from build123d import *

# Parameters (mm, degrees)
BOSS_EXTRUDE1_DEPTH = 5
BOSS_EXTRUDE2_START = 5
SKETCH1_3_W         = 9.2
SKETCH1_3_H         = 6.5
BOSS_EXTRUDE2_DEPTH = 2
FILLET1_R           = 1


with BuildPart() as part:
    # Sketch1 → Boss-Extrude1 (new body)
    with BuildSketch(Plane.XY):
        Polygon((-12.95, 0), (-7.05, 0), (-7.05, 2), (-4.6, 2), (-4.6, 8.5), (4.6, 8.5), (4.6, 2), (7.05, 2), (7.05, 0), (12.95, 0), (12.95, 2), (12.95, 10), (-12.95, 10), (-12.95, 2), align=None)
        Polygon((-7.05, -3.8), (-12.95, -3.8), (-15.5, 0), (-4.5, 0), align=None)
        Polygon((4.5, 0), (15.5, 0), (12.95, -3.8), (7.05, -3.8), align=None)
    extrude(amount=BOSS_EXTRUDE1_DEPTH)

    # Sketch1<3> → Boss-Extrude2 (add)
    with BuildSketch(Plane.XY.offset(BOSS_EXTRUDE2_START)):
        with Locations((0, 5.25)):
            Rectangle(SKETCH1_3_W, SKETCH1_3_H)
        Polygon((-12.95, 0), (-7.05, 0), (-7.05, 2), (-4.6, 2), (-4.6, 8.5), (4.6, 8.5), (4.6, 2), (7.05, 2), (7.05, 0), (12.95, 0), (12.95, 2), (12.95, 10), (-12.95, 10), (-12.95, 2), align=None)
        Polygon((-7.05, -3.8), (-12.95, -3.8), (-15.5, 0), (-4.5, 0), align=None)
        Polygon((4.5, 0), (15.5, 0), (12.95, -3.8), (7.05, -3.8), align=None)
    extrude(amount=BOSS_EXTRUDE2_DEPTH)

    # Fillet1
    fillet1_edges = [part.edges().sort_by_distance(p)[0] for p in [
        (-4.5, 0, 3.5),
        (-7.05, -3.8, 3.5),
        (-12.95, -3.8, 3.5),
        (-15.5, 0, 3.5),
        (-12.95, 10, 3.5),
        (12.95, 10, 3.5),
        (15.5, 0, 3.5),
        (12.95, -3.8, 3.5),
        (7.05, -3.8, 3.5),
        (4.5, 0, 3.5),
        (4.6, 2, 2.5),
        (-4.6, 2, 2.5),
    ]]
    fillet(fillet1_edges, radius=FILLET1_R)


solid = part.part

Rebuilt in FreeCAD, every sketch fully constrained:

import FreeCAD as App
import Part
import Sketcher

V = App.Vector


def edges_at(feature, points):
    """Names of the edges that pass closest to the given points."""
    edges = feature.Shape.Edges
    near = lambda p: min(range(len(edges)), key=lambda i: edges[i].distToShape(Part.Vertex(*p))[0])
    return sorted({f"Edge{near(p) + 1}" for p in points})

doc = App.newDocument("Part")
body = doc.addObject("PartDesign::Body", "Body")

sketch1 = body.newObject("Sketcher::SketchObject", "Sketch")
sketch1.AttachmentSupport = (doc.getObject("XY_Plane"), [""])
sketch1.MapMode = "FlatFace"
sketch1.addGeometry(Part.LineSegment(V(-7, 0, 0), V(-7, 2, 0)), False)
sketch1.addGeometry(Part.LineSegment(V(-7, 2, 0), V(-4.6, 2, 0)), False)
sketch1.addGeometry(Part.LineSegment(V(-4.6, 2, 0), V(-4.6, 8.5, 0)), False)
sketch1.addGeometry(Part.LineSegment(V(-4.6, 8.5, 0), V(4.6, 8.5, 0)), False)
sketch1.addGeometry(Part.LineSegment(V(4.6, 8.5, 0), V(4.6, 2, 0)), False)
sketch1.addGeometry(Part.LineSegment(V(4.6, 2, 0), V(7, 2, 0)), False)
sketch1.addGeometry(Part.LineSegment(V(7, 2, 0), V(7, 0, 0)), False)
sketch1.addGeometry(Part.LineSegment(V(7, 0, 0), V(4.5, 0, 0)), False)
sketch1.addGeometry(Part.LineSegment(V(4.5, 0, 0), V(7, -3.8, 0)), False)
sketch1.addGeometry(Part.LineSegment(V(7, -3.8, 0), V(12.9, -3.8, 0)), False)
sketch1.addGeometry(Part.LineSegment(V(12.9, -3.8, 0), V(15.5, 0, 0)), False)
sketch1.addGeometry(Part.LineSegment(V(15.5, 0, 0), V(12.9, 0, 0)), False)
sketch1.addGeometry(Part.LineSegment(V(12.9, 0, 0), V(12.9, 10, 0)), False)
sketch1.addGeometry(Part.LineSegment(V(12.9, 10, 0), V(-12.9, 10, 0)), False)
sketch1.addGeometry(Part.LineSegment(V(-12.9, 10, 0), V(-12.9, 0, 0)), False)
sketch1.addGeometry(Part.LineSegment(V(-12.9, 0, 0), V(-15.5, 0, 0)), False)
sketch1.addGeometry(Part.LineSegment(V(-15.5, 0, 0), V(-12.9, -3.8, 0)), False)
sketch1.addGeometry(Part.LineSegment(V(-12.9, -3.8, 0), V(-7, -3.8, 0)), False)
sketch1.addGeometry(Part.LineSegment(V(-7, -3.8, 0), V(-4.5, 0, 0)), False)
sketch1.addGeometry(Part.LineSegment(V(-4.5, 0, 0), V(-7, 0, 0)), False)
sketch1.addConstraint(Sketcher.Constraint("Coincident", 0, 2, 1, 1))
sketch1.addConstraint(Sketcher.Constraint("Coincident", 1, 2, 2, 1))
sketch1.addConstraint(Sketcher.Constraint("Coincident", 2, 2, 3, 1))
sketch1.addConstraint(Sketcher.Constraint("Coincident", 3, 2, 4, 1))
sketch1.addConstraint(Sketcher.Constraint("Coincident", 4, 2, 5, 1))
sketch1.addConstraint(Sketcher.Constraint("Coincident", 5, 2, 6, 1))
sketch1.addConstraint(Sketcher.Constraint("Coincident", 6, 2, 7, 1))
sketch1.addConstraint(Sketcher.Constraint("Coincident", 7, 2, 8, 1))
sketch1.addConstraint(Sketcher.Constraint("Coincident", 8, 2, 9, 1))
sketch1.addConstraint(Sketcher.Constraint("Coincident", 9, 2, 10, 1))
sketch1.addConstraint(Sketcher.Constraint("Coincident", 10, 2, 11, 1))
sketch1.addConstraint(Sketcher.Constraint("Coincident", 11, 2, 12, 1))
sketch1.addConstraint(Sketcher.Constraint("Coincident", 12, 2, 13, 1))
sketch1.addConstraint(Sketcher.Constraint("Coincident", 13, 2, 14, 1))
sketch1.addConstraint(Sketcher.Constraint("Coincident", 14, 2, 15, 1))
sketch1.addConstraint(Sketcher.Constraint("Coincident", 15, 2, 16, 1))
sketch1.addConstraint(Sketcher.Constraint("Coincident", 16, 2, 17, 1))
sketch1.addConstraint(Sketcher.Constraint("Coincident", 17, 2, 18, 1))
sketch1.addConstraint(Sketcher.Constraint("Coincident", 18, 2, 19, 1))
sketch1.addConstraint(Sketcher.Constraint("Coincident", 19, 2, 0, 1))
sketch1.addConstraint(Sketcher.Constraint("Vertical", 0))
sketch1.addConstraint(Sketcher.Constraint("Horizontal", 1))
sketch1.addConstraint(Sketcher.Constraint("Vertical", 2))
sketch1.addConstraint(Sketcher.Constraint("Horizontal", 3))
sketch1.addConstraint(Sketcher.Constraint("Vertical", 4))
sketch1.addConstraint(Sketcher.Constraint("Horizontal", 5))
sketch1.addConstraint(Sketcher.Constraint("Vertical", 6))
sketch1.addConstraint(Sketcher.Constraint("Horizontal", 7))
sketch1.addConstraint(Sketcher.Constraint("Horizontal", 9))
sketch1.addConstraint(Sketcher.Constraint("Horizontal", 11))
sketch1.addConstraint(Sketcher.Constraint("Vertical", 12))
sketch1.addConstraint(Sketcher.Constraint("Horizontal", 13))
sketch1.addConstraint(Sketcher.Constraint("Vertical", 14))
sketch1.addConstraint(Sketcher.Constraint("Horizontal", 15))
sketch1.addConstraint(Sketcher.Constraint("Horizontal", 17))
sketch1.addConstraint(Sketcher.Constraint("Horizontal", 19))
sketch1.addConstraint(Sketcher.Constraint("Symmetric", 11, 2, 14, 2, -1, 1))
sketch1.addConstraint(Sketcher.Constraint("Symmetric", 7, 2, 18, 2, -1, 1))
sketch1.addConstraint(Sketcher.Constraint("Symmetric", 1, 2, 4, 2, -2))
sketch1.addConstraint(Sketcher.Constraint("Symmetric", 10, 2, 15, 2, -2))
sketch1.addConstraint(Sketcher.Constraint("Symmetric", 9, 2, 16, 2, -2))
sketch1.addConstraint(Sketcher.Constraint("Symmetric", 6, 2, 19, 2, -2))
sketch1.addConstraint(Sketcher.Constraint("Parallel", 8, 16))
sketch1.addConstraint(Sketcher.Constraint("Parallel", 10, 18))
sketch1.addConstraint(Sketcher.Constraint("Vertical", 6, 2, 8, 2))
sketch1.addConstraint(Sketcher.Constraint("Vertical", 9, 2, 11, 2))
sketch1.addConstraint(Sketcher.Constraint("DistanceY", 0, 1, 0, 2, 2.0))
sketch1.addConstraint(Sketcher.Constraint("DistanceY", 12, 1, 12, 2, 10.0))
sketch1.addConstraint(Sketcher.Constraint("DistanceX", 3, 1, 3, 2, 9.2))
sketch1.addConstraint(Sketcher.Constraint("DistanceX", 9, 1, 9, 2, 5.9))
sketch1.addConstraint(Sketcher.Constraint("DistanceX", 13, 2, 13, 1, 25.9))
sketch1.addConstraint(Sketcher.Constraint("DistanceY", 2, 1, 2, 2, 6.5))
sketch1.addConstraint(Sketcher.Constraint("DistanceX", 7, 2, 10, 2, 11.0))
sketch1.addConstraint(Sketcher.Constraint("DistanceY", 8, 2, -1, 1, 3.8))
pad1 = body.newObject("PartDesign::Pad", "Pad")
pad1.Profile = sketch1
pad1.Length = 5

sketch2 = body.newObject("Sketcher::SketchObject", "Sketch001")
sketch2.AttachmentSupport = (doc.getObject("XY_Plane"), [""])
sketch2.MapMode = "FlatFace"
sketch2.AttachmentOffset = App.Placement(V(0, 0, 5), App.Rotation())
sketch2.addGeometry(Part.LineSegment(V(7, 2, 0), V(7, 0, 0)), False)
sketch2.addGeometry(Part.LineSegment(V(7, 0, 0), V(4.5, 0, 0)), False)
sketch2.addGeometry(Part.LineSegment(V(4.5, 0, 0), V(7, -3.8, 0)), False)
sketch2.addGeometry(Part.LineSegment(V(7, -3.8, 0), V(12.9, -3.8, 0)), False)
sketch2.addGeometry(Part.LineSegment(V(12.9, -3.8, 0), V(15.5, 0, 0)), False)
sketch2.addGeometry(Part.LineSegment(V(15.5, 0, 0), V(12.9, 0, 0)), False)
sketch2.addGeometry(Part.LineSegment(V(12.9, 0, 0), V(12.9, 10, 0)), False)
sketch2.addGeometry(Part.LineSegment(V(12.9, 10, 0), V(-12.9, 10, 0)), False)
sketch2.addGeometry(Part.LineSegment(V(-12.9, 10, 0), V(-12.9, 0, 0)), False)
sketch2.addGeometry(Part.LineSegment(V(-12.9, 0, 0), V(-15.5, 0, 0)), False)
sketch2.addGeometry(Part.LineSegment(V(-15.5, 0, 0), V(-12.9, -3.8, 0)), False)
sketch2.addGeometry(Part.LineSegment(V(-12.9, -3.8, 0), V(-7, -3.8, 0)), False)
sketch2.addGeometry(Part.LineSegment(V(-7, -3.8, 0), V(-4.5, 0, 0)), False)
sketch2.addGeometry(Part.LineSegment(V(-4.5, 0, 0), V(-7, 0, 0)), False)
sketch2.addGeometry(Part.LineSegment(V(-7, 0, 0), V(-7, 2, 0)), False)
sketch2.addGeometry(Part.LineSegment(V(-7, 2, 0), V(7, 2, 0)), False)
sketch2.addConstraint(Sketcher.Constraint("Coincident", 0, 2, 1, 1))
sketch2.addConstraint(Sketcher.Constraint("Coincident", 1, 2, 2, 1))
sketch2.addConstraint(Sketcher.Constraint("Coincident", 2, 2, 3, 1))
sketch2.addConstraint(Sketcher.Constraint("Coincident", 3, 2, 4, 1))
sketch2.addConstraint(Sketcher.Constraint("Coincident", 4, 2, 5, 1))
sketch2.addConstraint(Sketcher.Constraint("Coincident", 5, 2, 6, 1))
sketch2.addConstraint(Sketcher.Constraint("Coincident", 6, 2, 7, 1))
sketch2.addConstraint(Sketcher.Constraint("Coincident", 7, 2, 8, 1))
sketch2.addConstraint(Sketcher.Constraint("Coincident", 8, 2, 9, 1))
sketch2.addConstraint(Sketcher.Constraint("Coincident", 9, 2, 10, 1))
sketch2.addConstraint(Sketcher.Constraint("Coincident", 10, 2, 11, 1))
sketch2.addConstraint(Sketcher.Constraint("Coincident", 11, 2, 12, 1))
sketch2.addConstraint(Sketcher.Constraint("Coincident", 12, 2, 13, 1))
sketch2.addConstraint(Sketcher.Constraint("Coincident", 13, 2, 14, 1))
sketch2.addConstraint(Sketcher.Constraint("Coincident", 14, 2, 15, 1))
sketch2.addConstraint(Sketcher.Constraint("Coincident", 15, 2, 0, 1))
sketch2.addConstraint(Sketcher.Constraint("Vertical", 0))
sketch2.addConstraint(Sketcher.Constraint("Horizontal", 1))
sketch2.addConstraint(Sketcher.Constraint("Horizontal", 3))
sketch2.addConstraint(Sketcher.Constraint("Horizontal", 5))
sketch2.addConstraint(Sketcher.Constraint("Vertical", 6))
sketch2.addConstraint(Sketcher.Constraint("Horizontal", 7))
sketch2.addConstraint(Sketcher.Constraint("Vertical", 8))
sketch2.addConstraint(Sketcher.Constraint("Horizontal", 9))
sketch2.addConstraint(Sketcher.Constraint("Horizontal", 11))
sketch2.addConstraint(Sketcher.Constraint("Horizontal", 13))
sketch2.addConstraint(Sketcher.Constraint("Vertical", 14))
sketch2.addConstraint(Sketcher.Constraint("Horizontal", 15))
sketch2.addConstraint(Sketcher.Constraint("Symmetric", 5, 2, 8, 2, -1, 1))
sketch2.addConstraint(Sketcher.Constraint("Symmetric", 1, 2, 12, 2, -1, 1))
sketch2.addConstraint(Sketcher.Constraint("Symmetric", 4, 2, 9, 2, -2))
sketch2.addConstraint(Sketcher.Constraint("Symmetric", 3, 2, 10, 2, -2))
sketch2.addConstraint(Sketcher.Constraint("Symmetric", 0, 2, 13, 2, -2))
sketch2.addConstraint(Sketcher.Constraint("Parallel", 2, 10))
sketch2.addConstraint(Sketcher.Constraint("Parallel", 4, 12))
sketch2.addConstraint(Sketcher.Constraint("Vertical", 0, 2, 2, 2))
sketch2.addConstraint(Sketcher.Constraint("Vertical", 3, 2, 5, 2))
sketch2.addConstraint(Sketcher.Constraint("DistanceY", 0, 2, 0, 1, 2.0))
sketch2.addConstraint(Sketcher.Constraint("DistanceY", 6, 1, 6, 2, 10.0))
sketch2.addConstraint(Sketcher.Constraint("DistanceX", 3, 1, 3, 2, 5.9))
sketch2.addConstraint(Sketcher.Constraint("DistanceX", 7, 2, 7, 1, 25.9))
sketch2.addConstraint(Sketcher.Constraint("DistanceX", 1, 2, 4, 2, 11.0))
sketch2.addConstraint(Sketcher.Constraint("DistanceY", 2, 2, -1, 1, 3.8))
pad2 = body.newObject("PartDesign::Pad", "Pad001")
pad2.Profile = sketch2
pad2.Length = 2
doc.recompute()

fillet = body.newObject("PartDesign::Fillet", "Fillet")
fillet.Base = (pad2, edges_at(pad2, [
    (-4.5, 0, 3.5),
    (-7.05, -3.8, 3.5),
    (-12.95, -3.8, 3.5),
    (-15.5, 0, 3.5),
    (-12.95, 10, 3.5),
    (12.95, 10, 3.5),
    (15.5, 0, 3.5),
    (12.95, -3.8, 3.5),
    (7.05, -3.8, 3.5),
    (4.5, 0, 3.5),
    (4.6, 2, 2.5),
    (-4.6, 2, 2.5),
]))
fillet.Radius = 1

doc.recompute()
